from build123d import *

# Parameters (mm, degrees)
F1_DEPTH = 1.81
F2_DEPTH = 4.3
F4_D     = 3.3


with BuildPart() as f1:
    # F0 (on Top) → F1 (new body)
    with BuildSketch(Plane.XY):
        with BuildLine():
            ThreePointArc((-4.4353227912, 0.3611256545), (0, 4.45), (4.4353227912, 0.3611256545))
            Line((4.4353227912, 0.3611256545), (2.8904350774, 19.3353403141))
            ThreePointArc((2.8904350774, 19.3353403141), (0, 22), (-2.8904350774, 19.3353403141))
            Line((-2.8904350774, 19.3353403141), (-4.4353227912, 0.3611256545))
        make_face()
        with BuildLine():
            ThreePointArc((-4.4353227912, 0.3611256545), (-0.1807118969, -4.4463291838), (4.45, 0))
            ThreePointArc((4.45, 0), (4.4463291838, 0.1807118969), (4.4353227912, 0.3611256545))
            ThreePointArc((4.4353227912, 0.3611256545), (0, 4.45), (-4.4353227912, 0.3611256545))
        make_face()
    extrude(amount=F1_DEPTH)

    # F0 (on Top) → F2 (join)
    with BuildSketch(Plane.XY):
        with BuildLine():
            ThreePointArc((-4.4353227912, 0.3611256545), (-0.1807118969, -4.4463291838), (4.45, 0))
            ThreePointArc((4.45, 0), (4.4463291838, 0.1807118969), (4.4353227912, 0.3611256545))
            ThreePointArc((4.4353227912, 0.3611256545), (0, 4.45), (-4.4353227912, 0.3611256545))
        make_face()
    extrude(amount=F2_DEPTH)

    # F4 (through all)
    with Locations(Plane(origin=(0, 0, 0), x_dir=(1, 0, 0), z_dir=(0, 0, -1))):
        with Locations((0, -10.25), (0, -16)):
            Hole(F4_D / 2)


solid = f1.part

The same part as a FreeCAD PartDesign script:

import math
import FreeCAD as App
import Part
import Sketcher

V = App.Vector

doc = App.newDocument("Part")
body = doc.addObject("PartDesign::Body", "Body")

# Sketch on XY plane
sketch1 = body.newObject("Sketcher::SketchObject", "Sketch")
sketch1.AttachmentSupport = (doc.getObject("XY_Plane"), [""])
sketch1.MapMode = "FlatFace"
sketch1.addGeometry(Part.LineSegment(V(4.44, 0.36, 0), V(2.89, 19.34, 0)), False)
sketch1.addGeometry(Part.ArcOfCircle(Part.Circle(V(0, 19.1, 0), V(0, 0, 1), 2.9), math.radians(5), math.radians(175)), False)
sketch1.addGeometry(Part.LineSegment(V(-2.89, 19.34, 0), V(-4.44, 0.36, 0)), False)
sketch1.addGeometry(Part.ArcOfCircle(Part.Circle(V(0, 0, 0), V(0, 0, 1), 4.45), math.radians(175), math.radians(360)), False)
sketch1.addGeometry(Part.ArcOfCircle(Part.Circle(V(0, 0, 0), V(0, 0, 1), 4.45), math.radians(0), math.radians(4.65)), False)
sketch1.addConstraint(Sketcher.Constraint("Tangent", 0, 2, 1, 1))
sketch1.addConstraint(Sketcher.Constraint("Tangent", 1, 2, 2, 1))
sketch1.addConstraint(Sketcher.Constraint("Tangent", 2, 2, 3, 1))
sketch1.addConstraint(Sketcher.Constraint("Tangent", 3, 2, 4, 1))
sketch1.addConstraint(Sketcher.Constraint("Tangent", 4, 2, 0, 1))
sketch1.addConstraint(Sketcher.Constraint("Coincident", 3, 3, -1, 1))
sketch1.addConstraint(Sketcher.Constraint("Equal", 3, 4))
sketch1.addConstraint(Sketcher.Constraint("PointOnObject", 1, 3, -2))
sketch1.addConstraint(Sketcher.Constraint("PointOnObject", 3, 2, -1))
sketch1.addConstraint(Sketcher.Constraint("Radius", 1, 2.9))
sketch1.addConstraint(Sketcher.Constraint("Radius", 3, 4.45))
sketch1.addConstraint(Sketcher.Constraint("DistanceY", -1, 1, 1, 3, 19.1))
pad1 = body.newObject("PartDesign::Pad", "Pad")
pad1.Profile = sketch1
pad1.Length = 1.81

# Sketch on XY plane
sketch2 = body.newObject("Sketcher::SketchObject", "Sketch001")
sketch2.AttachmentSupport = (doc.getObject("XY_Plane"), [""])
sketch2.MapMode = "FlatFace"
sketch2.addGeometry(Part.ArcOfCircle(Part.Circle(V(0, 0, 0), V(0, 0, 1), 4.45), math.radians(175), math.radians(360)), False)
sketch2.addGeometry(Part.ArcOfCircle(Part.Circle(V(0, 0, 0), V(0, 0, 1), 4.45), math.radians(0), math.radians(4.65)), False)
sketch2.addGeometry(Part.ArcOfCircle(Part.Circle(V(0, 0, 0), V(0, 0, 1), 4.45), math.radians(5), math.radians(175)), False)
sketch2.addConstraint(Sketcher.Constraint("Tangent", 0, 2, 1, 1))
sketch2.addConstraint(Sketcher.Constraint("Tangent", 1, 2, 2, 1))
sketch2.addConstraint(Sketcher.Constraint("Tangent", 2, 2, 0, 1))
sketch2.addConstraint(Sketcher.Constraint("Coincident", 0, 3, -1, 1))
sketch2.addConstraint(Sketcher.Constraint("PointOnObject", 0, 2, -1))
sketch2.addConstraint(Sketcher.Constraint("Horizontal", 1, 2, 2, 2))
sketch2.addConstraint(Sketcher.Constraint("Radius", 0, 4.45))
sketch2.addConstraint(Sketcher.Constraint("DistanceX", -1, 1, 1, 2, 4.435323))
pad2 = body.newObject("PartDesign::Pad", "Pad001")
pad2.Profile = sketch2
pad2.Length = 4.3

# Sketch on XY plane
sketch3 = body.newObject("Sketcher::SketchObject", "Sketch002")
sketch3.AttachmentSupport = (doc.getObject("XY_Plane"), [""])
sketch3.MapMode = "FlatFace"
sketch3.addGeometry(Part.Circle(V(0, 10.2, 0), V(0, 0, 1), 1.6), False)
sketch3.addGeometry(Part.Circle(V(0, 16, 0), V(0, 0, 1), 1.6), False)
sketch3.addConstraint(Sketcher.Constraint("Equal", 0, 1))
sketch3.addConstraint(Sketcher.Constraint("PointOnObject", 0, 3, -2))
sketch3.addConstraint(Sketcher.Constraint("PointOnObject", 1, 3, -2))
sketch3.addConstraint(Sketcher.Constraint("Diameter", 0, 3.3))
sketch3.addConstraint(Sketcher.Constraint("DistanceY", -1, 1, 1, 3, 16.0))
sketch3.addConstraint(Sketcher.Constraint("DistanceY", -1, 1, 0, 3, 10.25))
doc.recompute()
hole = body.newObject("PartDesign::Hole", "Hole")
hole.Profile = sketch3
hole.ThreadType = "None"
hole.Diameter = 3.3
hole.DepthType = "ThroughAll"
hole.Reversed = True

doc.recompute()
